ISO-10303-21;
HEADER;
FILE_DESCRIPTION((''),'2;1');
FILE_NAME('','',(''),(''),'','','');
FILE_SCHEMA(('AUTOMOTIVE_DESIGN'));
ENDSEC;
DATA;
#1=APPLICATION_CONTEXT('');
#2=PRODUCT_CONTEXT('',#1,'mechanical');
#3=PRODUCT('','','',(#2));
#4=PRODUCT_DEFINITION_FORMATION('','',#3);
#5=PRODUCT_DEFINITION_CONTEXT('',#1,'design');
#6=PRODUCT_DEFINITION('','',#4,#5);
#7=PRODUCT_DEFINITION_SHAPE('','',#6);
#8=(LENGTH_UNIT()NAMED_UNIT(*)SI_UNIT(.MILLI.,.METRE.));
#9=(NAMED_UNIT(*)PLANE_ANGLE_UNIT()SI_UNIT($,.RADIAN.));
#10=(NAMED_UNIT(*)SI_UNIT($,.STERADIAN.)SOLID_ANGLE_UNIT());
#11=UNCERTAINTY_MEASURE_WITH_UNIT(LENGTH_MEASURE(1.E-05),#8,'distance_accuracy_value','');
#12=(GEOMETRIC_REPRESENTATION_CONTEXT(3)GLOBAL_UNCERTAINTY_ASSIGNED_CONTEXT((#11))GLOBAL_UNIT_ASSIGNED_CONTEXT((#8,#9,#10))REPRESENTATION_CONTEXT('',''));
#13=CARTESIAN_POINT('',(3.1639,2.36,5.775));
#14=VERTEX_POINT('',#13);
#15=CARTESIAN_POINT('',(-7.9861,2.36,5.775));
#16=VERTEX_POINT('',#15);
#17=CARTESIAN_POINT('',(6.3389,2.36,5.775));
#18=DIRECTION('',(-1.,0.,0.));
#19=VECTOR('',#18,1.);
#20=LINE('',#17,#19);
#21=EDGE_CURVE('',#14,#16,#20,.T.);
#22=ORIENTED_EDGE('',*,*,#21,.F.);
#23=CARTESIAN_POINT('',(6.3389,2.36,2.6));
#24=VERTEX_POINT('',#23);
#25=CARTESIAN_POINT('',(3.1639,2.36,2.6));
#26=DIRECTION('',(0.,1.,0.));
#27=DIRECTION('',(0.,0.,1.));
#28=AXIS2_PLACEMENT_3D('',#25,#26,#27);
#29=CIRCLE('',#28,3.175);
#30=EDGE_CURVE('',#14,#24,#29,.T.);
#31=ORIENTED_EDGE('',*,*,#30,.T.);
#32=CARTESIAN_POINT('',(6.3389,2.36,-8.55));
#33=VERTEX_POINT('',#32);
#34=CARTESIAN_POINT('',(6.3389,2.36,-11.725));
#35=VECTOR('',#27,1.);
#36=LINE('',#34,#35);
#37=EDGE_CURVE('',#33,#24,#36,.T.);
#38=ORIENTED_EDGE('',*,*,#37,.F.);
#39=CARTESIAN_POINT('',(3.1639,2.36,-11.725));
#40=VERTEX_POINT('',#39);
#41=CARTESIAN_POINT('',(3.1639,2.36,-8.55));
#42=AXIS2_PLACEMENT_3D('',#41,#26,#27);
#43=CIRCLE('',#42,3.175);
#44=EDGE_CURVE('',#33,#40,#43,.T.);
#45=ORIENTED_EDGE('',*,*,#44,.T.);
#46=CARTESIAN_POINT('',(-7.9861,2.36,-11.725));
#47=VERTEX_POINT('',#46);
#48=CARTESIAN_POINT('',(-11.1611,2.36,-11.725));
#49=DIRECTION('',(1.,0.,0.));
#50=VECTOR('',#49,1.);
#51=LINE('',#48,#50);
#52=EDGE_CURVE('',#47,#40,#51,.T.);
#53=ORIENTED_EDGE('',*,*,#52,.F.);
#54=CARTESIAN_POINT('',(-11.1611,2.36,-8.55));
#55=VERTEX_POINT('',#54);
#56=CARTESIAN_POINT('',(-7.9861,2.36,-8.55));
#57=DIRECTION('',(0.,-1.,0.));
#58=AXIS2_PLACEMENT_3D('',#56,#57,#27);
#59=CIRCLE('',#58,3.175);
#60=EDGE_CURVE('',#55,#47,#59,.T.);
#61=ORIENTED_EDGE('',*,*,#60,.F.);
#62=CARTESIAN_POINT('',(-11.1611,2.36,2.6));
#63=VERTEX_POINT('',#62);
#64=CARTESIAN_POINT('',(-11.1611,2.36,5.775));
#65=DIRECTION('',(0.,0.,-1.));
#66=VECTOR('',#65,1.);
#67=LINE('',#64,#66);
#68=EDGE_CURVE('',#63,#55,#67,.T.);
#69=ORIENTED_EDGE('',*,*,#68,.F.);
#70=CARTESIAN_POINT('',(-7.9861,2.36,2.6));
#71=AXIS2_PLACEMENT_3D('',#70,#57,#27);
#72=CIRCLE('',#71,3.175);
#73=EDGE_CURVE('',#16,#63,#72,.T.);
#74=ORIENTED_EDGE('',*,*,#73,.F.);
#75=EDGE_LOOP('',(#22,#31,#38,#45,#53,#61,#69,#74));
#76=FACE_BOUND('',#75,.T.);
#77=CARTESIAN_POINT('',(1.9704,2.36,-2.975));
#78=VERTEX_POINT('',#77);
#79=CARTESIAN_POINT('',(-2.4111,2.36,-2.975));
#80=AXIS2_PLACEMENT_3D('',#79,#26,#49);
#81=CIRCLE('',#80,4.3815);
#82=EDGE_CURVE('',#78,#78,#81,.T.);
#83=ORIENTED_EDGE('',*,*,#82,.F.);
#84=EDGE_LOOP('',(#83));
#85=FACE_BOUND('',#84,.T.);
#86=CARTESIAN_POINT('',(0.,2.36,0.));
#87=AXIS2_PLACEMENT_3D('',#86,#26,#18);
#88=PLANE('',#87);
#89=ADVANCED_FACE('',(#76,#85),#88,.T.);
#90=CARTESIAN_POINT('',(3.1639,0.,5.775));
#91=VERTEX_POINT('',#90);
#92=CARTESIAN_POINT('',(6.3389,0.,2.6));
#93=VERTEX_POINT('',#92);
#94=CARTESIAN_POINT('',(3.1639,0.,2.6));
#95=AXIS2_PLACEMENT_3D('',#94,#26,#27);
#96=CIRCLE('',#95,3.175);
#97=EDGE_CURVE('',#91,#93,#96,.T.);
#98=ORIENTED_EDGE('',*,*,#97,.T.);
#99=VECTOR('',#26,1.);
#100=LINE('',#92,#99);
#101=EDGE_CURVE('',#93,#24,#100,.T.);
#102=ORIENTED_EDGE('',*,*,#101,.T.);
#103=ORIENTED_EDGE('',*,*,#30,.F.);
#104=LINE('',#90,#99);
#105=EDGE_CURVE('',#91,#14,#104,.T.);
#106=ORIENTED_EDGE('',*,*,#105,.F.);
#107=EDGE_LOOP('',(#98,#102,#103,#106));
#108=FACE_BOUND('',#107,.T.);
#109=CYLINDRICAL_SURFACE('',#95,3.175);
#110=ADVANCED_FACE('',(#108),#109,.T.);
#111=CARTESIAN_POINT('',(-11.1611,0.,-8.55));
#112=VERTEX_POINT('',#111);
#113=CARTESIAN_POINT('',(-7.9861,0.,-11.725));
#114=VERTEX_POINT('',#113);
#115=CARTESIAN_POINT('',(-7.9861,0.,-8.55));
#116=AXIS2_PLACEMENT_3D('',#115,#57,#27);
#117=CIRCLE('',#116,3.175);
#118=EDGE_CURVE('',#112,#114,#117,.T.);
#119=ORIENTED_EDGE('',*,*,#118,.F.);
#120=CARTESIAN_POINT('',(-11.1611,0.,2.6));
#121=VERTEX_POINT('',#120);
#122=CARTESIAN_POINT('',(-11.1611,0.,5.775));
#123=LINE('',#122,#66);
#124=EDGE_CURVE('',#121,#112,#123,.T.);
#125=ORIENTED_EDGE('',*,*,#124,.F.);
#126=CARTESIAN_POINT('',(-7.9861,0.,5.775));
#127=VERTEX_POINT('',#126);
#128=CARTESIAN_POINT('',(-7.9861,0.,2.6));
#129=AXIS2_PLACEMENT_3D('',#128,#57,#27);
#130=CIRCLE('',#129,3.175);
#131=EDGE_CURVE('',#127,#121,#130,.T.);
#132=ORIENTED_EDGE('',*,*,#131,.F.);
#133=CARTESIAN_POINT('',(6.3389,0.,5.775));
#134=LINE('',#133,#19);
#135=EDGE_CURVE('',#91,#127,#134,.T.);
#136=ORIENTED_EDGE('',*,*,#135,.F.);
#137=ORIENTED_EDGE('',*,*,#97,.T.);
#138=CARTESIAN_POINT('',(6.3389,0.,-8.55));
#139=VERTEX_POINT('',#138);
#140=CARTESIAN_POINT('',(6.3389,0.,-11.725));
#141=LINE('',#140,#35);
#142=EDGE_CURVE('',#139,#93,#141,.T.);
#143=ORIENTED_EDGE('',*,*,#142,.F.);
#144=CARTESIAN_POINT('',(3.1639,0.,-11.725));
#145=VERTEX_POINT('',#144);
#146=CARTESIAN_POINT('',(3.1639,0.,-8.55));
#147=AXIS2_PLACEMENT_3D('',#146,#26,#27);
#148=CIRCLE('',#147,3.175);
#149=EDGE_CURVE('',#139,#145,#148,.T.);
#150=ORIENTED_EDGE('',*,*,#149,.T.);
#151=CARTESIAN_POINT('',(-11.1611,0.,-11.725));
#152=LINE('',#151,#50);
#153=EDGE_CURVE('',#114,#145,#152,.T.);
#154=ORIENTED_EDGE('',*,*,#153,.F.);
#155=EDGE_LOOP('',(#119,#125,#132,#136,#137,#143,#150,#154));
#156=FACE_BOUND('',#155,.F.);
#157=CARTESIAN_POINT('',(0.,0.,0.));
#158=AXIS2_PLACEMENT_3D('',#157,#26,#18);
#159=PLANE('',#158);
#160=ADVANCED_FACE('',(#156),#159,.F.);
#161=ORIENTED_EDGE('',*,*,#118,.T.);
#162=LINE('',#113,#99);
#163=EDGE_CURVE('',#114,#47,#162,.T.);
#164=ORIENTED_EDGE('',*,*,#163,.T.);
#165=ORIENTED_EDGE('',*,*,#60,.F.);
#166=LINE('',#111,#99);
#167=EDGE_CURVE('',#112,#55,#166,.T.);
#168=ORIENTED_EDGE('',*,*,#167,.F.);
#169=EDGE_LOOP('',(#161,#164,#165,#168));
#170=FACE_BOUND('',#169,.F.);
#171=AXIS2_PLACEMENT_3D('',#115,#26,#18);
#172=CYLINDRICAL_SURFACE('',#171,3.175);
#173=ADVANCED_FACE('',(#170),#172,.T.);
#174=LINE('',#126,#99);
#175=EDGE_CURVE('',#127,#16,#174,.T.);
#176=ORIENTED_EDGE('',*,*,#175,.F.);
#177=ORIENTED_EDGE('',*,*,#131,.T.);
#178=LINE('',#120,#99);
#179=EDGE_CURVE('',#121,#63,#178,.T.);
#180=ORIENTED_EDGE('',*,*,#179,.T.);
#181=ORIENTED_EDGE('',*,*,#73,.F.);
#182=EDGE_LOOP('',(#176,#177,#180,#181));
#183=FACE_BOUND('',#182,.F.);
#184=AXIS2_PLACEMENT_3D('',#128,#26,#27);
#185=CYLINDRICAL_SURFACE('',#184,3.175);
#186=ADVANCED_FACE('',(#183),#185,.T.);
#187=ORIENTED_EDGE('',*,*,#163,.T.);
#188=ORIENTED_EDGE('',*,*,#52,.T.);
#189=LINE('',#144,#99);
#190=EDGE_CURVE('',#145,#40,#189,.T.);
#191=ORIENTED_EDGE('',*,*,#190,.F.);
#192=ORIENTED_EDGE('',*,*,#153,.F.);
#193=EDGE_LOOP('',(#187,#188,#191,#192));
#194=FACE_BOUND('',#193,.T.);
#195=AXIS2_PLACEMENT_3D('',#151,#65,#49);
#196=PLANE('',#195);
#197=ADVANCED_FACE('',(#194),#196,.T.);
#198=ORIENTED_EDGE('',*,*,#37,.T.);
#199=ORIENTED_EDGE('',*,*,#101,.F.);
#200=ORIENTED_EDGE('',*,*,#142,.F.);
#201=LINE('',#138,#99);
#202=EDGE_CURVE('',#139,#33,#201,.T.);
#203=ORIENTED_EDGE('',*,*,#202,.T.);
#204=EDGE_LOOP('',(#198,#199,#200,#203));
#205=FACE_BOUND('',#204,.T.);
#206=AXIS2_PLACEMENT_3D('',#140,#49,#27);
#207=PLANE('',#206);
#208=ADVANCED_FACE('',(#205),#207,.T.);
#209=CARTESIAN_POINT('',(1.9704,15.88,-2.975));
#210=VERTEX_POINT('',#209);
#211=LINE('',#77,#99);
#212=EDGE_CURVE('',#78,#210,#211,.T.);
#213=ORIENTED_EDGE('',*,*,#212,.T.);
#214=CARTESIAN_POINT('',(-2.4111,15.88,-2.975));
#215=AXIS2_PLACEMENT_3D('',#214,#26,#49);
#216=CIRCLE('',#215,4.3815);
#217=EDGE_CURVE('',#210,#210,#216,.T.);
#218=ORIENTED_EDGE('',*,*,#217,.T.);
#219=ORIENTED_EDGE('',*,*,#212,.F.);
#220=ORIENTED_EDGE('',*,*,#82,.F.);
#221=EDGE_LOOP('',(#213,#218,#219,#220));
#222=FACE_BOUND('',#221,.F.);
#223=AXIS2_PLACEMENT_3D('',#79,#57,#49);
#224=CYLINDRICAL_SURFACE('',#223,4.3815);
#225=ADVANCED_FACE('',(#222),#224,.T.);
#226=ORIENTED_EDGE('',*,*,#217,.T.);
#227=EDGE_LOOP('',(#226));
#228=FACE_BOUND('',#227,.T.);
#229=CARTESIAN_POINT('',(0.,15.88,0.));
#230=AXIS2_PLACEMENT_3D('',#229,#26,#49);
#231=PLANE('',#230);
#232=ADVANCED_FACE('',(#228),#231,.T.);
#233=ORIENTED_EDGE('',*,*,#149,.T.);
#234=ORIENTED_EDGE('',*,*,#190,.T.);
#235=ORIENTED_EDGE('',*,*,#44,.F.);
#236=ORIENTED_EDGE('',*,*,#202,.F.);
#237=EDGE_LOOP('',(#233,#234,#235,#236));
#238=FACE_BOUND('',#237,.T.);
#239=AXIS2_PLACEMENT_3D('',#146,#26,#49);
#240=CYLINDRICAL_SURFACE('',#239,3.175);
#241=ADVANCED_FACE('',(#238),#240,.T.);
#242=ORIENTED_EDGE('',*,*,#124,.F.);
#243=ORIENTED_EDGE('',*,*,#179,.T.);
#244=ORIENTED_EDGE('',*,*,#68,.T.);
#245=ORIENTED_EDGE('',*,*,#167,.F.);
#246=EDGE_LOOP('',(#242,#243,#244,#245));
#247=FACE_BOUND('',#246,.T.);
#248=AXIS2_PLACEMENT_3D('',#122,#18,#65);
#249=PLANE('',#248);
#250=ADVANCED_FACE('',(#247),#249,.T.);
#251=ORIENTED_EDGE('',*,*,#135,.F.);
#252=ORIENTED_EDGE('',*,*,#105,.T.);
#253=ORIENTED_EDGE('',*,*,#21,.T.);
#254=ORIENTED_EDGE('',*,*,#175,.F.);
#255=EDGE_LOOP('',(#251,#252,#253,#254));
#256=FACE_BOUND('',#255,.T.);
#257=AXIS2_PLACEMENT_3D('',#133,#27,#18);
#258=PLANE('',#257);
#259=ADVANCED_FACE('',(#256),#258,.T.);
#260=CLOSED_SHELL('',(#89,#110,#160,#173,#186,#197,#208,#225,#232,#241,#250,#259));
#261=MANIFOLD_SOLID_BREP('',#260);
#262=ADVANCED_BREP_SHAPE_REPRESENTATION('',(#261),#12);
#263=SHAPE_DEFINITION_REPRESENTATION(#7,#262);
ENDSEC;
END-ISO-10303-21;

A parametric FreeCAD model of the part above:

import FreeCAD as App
import Part
import Sketcher
from FreeCAD import Vector
Q = App.Units.Quantity


def edges_at(feature, points):
    """Names of the edges that pass closest to the given points."""
    edges = feature.Shape.Edges
    near = lambda p: min(range(len(edges)), key=lambda i: edges[i].distToShape(Part.Vertex(*p))[0])
    return sorted({f"Edge{near(p) + 1}" for p in points})


def add_polygon(sketch, points):
    """Adds a closed chain of lines whose ends are joined by coincident constraints."""
    first, n = sketch.GeometryCount, len(points)
    for a, b in zip(points, points[1:] + points[:1]):
        sketch.addGeometry(Part.LineSegment(App.Vector(*a, 0), App.Vector(*b, 0)), False)
    for i in range(n):
        sketch.addConstraint(Sketcher.Constraint("Coincident", first + i, 2, first + (i + 1) % n, 1))

doc = App.newDocument("Part")
body = doc.addObject("PartDesign::Body", "Body")

sketch1 = body.newObject("Sketcher::SketchObject", "Sketch")
sketch1.AttachmentSupport = (doc.getObject("XZ_Plane"), [""])
sketch1.MapMode = "FlatFace"
add_polygon(sketch1, [(-11.1611, 5.775), (6.3389, 5.775), (6.3389, -11.725), (-11.1611, -11.725)])
sketch1.addConstraint([
    Sketcher.Constraint("Horizontal", 0),
    Sketcher.Constraint("Vertical", 1),
    Sketcher.Constraint("Horizontal", 2),
    Sketcher.Constraint("Vertical", 3),
    Sketcher.Constraint("Equal", 2, 1),
    Sketcher.Constraint("DistanceX", 0, 1, 0, 2, 17.5),
    Sketcher.Constraint("DistanceX", -1, 1, 0, 2, 6.339),
    Sketcher.Constraint("DistanceY", -1, 1, 0, 2, 5.775),
])
pad1 = body.newObject("PartDesign::Pad", "Pad")
pad1.Profile = sketch1
pad1.Length = 2.36
pad1.Reversed = True

sketch2 = body.newObject("Sketcher::SketchObject", "Sketch001")
sketch2.AttachmentSupport = (doc.getObject("XZ_Plane"), [""])
sketch2.MapMode = "FlatFace"
sketch2.AttachmentOffset = App.Placement(Vector(0, 0, -2.36), App.Rotation())
sketch2.addGeometry(Part.Circle(Vector(-2.4111, -2.975, 0), Vector(0, 0, 1), 4.3815), False)
sketch2.addConstraint([
    Sketcher.Constraint("Diameter", 0, Q("0.345 in")),
    Sketcher.Constraint("DistanceX", 0, 3, -1, 1, 2.411),
    Sketcher.Constraint("DistanceY", 0, 3, -1, 1, 2.975),
])
pad2 = body.newObject("PartDesign::Pad", "Pad001")
pad2.Profile = sketch2
pad2.Length = 13.52
pad2.Reversed = True
doc.recompute()

fillet = body.newObject("PartDesign::Fillet", "Fillet")
fillet.Base = (pad2, edges_at(pad2, [
    (6.339, 1.18, 5.775),
    (-11.161, 1.18, 5.775),
    (6.339, 1.18, -11.725),
    (-11.161, 1.18, -11.725),
]))
fillet.Radius = Q("0.125 in")

doc.recompute()
